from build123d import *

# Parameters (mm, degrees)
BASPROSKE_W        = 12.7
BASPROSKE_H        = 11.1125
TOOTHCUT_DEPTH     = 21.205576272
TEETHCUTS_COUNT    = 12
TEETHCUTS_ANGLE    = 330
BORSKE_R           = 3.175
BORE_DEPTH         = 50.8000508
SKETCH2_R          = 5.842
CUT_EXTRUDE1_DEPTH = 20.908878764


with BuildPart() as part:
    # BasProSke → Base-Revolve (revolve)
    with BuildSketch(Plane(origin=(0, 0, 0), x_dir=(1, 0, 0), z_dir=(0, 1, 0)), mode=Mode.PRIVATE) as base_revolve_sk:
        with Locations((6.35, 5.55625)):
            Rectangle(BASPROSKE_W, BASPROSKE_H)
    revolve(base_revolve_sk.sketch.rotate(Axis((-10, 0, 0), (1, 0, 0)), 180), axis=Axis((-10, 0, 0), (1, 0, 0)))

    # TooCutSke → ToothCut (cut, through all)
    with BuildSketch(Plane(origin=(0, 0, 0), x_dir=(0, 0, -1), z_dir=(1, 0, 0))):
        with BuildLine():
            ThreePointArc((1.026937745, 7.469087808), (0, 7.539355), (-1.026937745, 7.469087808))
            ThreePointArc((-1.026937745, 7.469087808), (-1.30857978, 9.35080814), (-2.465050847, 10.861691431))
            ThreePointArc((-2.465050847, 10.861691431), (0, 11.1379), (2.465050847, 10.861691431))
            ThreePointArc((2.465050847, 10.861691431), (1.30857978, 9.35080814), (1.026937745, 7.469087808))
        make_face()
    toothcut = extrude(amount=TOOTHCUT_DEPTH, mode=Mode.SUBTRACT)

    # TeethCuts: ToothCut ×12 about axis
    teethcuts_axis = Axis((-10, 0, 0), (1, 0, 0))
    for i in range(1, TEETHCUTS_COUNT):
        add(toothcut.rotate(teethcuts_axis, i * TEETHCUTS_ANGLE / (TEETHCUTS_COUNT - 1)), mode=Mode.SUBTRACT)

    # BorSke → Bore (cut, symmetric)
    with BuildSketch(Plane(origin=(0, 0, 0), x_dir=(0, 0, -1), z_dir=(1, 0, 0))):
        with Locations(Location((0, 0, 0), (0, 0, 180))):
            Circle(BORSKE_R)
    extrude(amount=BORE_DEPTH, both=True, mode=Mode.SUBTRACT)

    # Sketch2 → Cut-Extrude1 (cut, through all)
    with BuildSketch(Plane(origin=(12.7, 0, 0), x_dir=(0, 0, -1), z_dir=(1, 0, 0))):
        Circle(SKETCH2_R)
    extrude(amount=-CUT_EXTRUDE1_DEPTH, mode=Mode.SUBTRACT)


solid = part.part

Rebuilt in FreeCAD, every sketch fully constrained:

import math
import FreeCAD as App
import Part
import Sketcher
Q = App.Units.Quantity


def add_polygon(sketch, points):
    """Adds a closed chain of lines whose ends are joined by coincident constraints."""
    first, n = sketch.GeometryCount, len(points)
    for a, b in zip(points, points[1:] + points[:1]):
        sketch.addGeometry(Part.LineSegment(App.Vector(*a, 0), App.Vector(*b, 0)), False)
    for i in range(n):
        sketch.addConstraint(Sketcher.Constraint("Coincident", first + i, 2, first + (i + 1) % n, 1))

doc = App.newDocument("Part")
body = doc.addObject("PartDesign::Body", "Body")

# Sketch on XZ plane
sketch1 = body.newObject("Sketcher::SketchObject", "Sketch")
sketch1.AttachmentSupport = (doc.getObject("XZ_Plane"), [""])
sketch1.MapMode = "FlatFace"
add_polygon(sketch1, [(0, -11), (0, 0), (13, 0), (13, -11)])  # lines 0-3
sketch1.addConstraint([
    Sketcher.Constraint("Vertical", 0),
    Sketcher.Constraint("Horizontal", 1),
    Sketcher.Constraint("Vertical", 2),
    Sketcher.Constraint("Horizontal", 3),
    Sketcher.Constraint("Coincident", 0, 2, -1, 1),
    Sketcher.Constraint("DistanceX", 1, 1, 1, 2, Q("0.5 in")),
    Sketcher.Constraint("DistanceY", 0, 1, 0, 2, Q("0.4375 in")),
])
revolution = body.newObject("PartDesign::Revolution", "Revolution")
revolution.Profile = sketch1
revolution.ReferenceAxis = (sketch1, ["H_Axis"])
revolution.Angle = 360

# Sketch on YZ plane
sketch2 = body.newObject("Sketcher::SketchObject", "Sketch001")
sketch2.AttachmentSupport = (doc.getObject("YZ_Plane"), [""])
sketch2.MapMode = "FlatFace"
sketch2.addGeometry([
    Part.ArcOfCircle(Part.Circle(App.Vector(0, 0, 0), App.Vector(0, 0, 1), 7.5), math.radians(-7.83), math.radians(7.83)),
    Part.ArcOfCircle(Part.Circle(App.Vector(7.9, -4.8, 0), App.Vector(0, 0, 1), 3.8), math.radians(38), math.radians(96)),
    Part.ArcOfCircle(Part.Circle(App.Vector(0, 0, 0), App.Vector(0, 0, 1), 11.1), math.radians(-13), math.radians(13)),
    Part.ArcOfCircle(Part.Circle(App.Vector(7.9, 4.8, 0), App.Vector(0, 0, 1), 3.8), math.radians(-96), math.radians(-38)),
], False)
sketch2.addConstraint([
    Sketcher.Constraint("Coincident", 0, 1, 1, 2),
    Sketcher.Constraint("Coincident", 1, 1, 2, 1),
    Sketcher.Constraint("Coincident", 2, 2, 3, 2),
    Sketcher.Constraint("Coincident", 3, 1, 0, 2),
    Sketcher.Constraint("Coincident", 0, 3, -1, 1),
    Sketcher.Constraint("Coincident", 2, 3, -1, 1),
    Sketcher.Constraint("Equal", 1, 3),
    Sketcher.Constraint("Symmetric", 1, 3, 3, 3, -1),
    Sketcher.Constraint("Radius", 1, Q("0.15 in")),
    Sketcher.Constraint("Radius", 2, Q("0.4385 in")),
    Sketcher.Constraint("DistanceX", -1, 1, 1, 3, Q("0.3096001 in")),
    Sketcher.Constraint("Radius", 0, 7.539355),
    Sketcher.Constraint("DistanceY", 1, 1, 2, 2, 4.930102),
])
pocket1 = body.newObject("PartDesign::Pocket", "Pocket")
pocket1.Profile = sketch2
pocket1.Type = "ThroughAll"
pocket1.Reversed = True
doc.recompute()

polarpattern = body.newObject("PartDesign::PolarPattern", "PolarPattern")
polarpattern.Originals = [pocket1]
polarpattern.Axis = (doc.getObject("X_Axis"), [""])
polarpattern.Angle = 360
polarpattern.Occurrences = 12
body.Tip = polarpattern

# Sketch on YZ plane
sketch3 = body.newObject("Sketcher::SketchObject", "Sketch002")
sketch3.AttachmentSupport = (doc.getObject("YZ_Plane"), [""])
sketch3.MapMode = "FlatFace"
sketch3.addGeometry(Part.Circle(App.Vector(0, 0, 0), App.Vector(0, 0, 1), 3.2), False)
sketch3.addConstraint([
    Sketcher.Constraint("Coincident", 0, 3, -1, 1),
    Sketcher.Constraint("Diameter", 0, Q("0.25 in")),
])
pocket2 = body.newObject("PartDesign::Pocket", "Pocket001")
pocket2.Profile = sketch3
pocket2.Length = 101.600102
pocket2.Midplane = True

# Sketch on YZ plane
sketch4 = body.newObject("Sketcher::SketchObject", "Sketch003")
sketch4.AttachmentSupport = (doc.getObject("YZ_Plane"), [""])
sketch4.MapMode = "FlatFace"
sketch4.AttachmentOffset = App.Placement(App.Vector(0, 0, 0.5 * 25.4), App.Rotation())
sketch4.addGeometry(Part.Circle(App.Vector(0, 0, 0), App.Vector(0, 0, 1), 6), False)
sketch4.addConstraint([
    Sketcher.Constraint("Coincident", 0, 3, -1, 1),
    Sketcher.Constraint("Diameter", 0, Q("0.46 in")),
])
pocket3 = body.newObject("PartDesign::Pocket", "Pocket002")
pocket3.Profile = sketch4
pocket3.Type = "ThroughAll"

doc.recompute()
